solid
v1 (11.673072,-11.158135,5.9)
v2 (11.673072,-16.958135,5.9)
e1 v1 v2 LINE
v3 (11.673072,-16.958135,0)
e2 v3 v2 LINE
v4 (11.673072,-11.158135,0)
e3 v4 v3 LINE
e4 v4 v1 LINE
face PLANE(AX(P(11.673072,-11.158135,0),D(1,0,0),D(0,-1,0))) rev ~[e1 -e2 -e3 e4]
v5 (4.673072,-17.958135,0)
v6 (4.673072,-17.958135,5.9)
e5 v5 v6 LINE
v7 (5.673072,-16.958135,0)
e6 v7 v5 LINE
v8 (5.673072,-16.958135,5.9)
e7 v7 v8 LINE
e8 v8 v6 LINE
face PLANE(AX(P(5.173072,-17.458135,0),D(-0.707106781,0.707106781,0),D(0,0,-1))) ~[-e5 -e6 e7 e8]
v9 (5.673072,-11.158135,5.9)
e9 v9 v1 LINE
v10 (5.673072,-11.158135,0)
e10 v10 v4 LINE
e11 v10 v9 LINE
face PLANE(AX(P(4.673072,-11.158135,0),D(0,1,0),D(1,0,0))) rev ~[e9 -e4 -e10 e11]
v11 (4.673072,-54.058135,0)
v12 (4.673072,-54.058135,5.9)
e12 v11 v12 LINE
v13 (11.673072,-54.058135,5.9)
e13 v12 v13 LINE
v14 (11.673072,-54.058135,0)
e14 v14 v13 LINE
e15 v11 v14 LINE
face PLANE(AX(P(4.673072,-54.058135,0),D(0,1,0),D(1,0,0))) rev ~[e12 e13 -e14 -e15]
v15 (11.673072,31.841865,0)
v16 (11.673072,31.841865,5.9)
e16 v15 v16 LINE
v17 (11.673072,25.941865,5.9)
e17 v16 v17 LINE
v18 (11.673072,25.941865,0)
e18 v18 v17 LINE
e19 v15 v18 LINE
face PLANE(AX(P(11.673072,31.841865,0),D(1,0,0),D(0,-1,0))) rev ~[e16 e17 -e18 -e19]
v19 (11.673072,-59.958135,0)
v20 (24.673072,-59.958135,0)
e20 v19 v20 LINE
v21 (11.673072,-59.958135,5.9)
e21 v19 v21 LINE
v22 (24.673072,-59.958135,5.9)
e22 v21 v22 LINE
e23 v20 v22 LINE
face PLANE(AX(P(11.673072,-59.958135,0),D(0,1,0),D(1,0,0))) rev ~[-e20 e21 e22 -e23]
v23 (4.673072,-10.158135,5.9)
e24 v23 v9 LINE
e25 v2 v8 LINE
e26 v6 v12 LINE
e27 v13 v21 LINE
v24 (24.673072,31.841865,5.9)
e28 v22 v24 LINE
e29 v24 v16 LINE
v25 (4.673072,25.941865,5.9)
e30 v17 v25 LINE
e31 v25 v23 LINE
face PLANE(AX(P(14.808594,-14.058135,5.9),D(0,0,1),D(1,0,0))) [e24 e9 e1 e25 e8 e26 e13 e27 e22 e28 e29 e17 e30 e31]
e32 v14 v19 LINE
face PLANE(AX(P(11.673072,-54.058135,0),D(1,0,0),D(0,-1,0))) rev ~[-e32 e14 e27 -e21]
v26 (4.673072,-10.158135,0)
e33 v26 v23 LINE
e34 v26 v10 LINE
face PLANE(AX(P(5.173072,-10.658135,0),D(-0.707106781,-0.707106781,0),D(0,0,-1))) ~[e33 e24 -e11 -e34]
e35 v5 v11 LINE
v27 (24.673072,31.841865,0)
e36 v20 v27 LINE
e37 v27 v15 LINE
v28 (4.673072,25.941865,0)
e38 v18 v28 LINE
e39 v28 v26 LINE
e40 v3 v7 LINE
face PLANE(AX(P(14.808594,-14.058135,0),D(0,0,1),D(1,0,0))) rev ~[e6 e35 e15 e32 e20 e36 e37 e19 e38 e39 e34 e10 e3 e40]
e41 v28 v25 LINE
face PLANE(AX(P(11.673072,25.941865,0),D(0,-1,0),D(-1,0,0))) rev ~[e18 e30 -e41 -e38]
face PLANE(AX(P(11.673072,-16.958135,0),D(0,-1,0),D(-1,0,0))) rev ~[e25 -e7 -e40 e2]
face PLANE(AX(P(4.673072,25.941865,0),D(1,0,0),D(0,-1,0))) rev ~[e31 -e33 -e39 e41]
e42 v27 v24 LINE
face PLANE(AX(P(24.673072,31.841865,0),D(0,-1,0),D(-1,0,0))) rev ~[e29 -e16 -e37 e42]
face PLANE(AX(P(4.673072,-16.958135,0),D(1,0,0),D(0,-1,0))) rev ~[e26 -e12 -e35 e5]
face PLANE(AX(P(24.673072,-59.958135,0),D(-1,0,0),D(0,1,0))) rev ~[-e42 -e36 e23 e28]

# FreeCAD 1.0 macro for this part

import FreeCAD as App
import Part
import Sketcher

V = App.Vector


def edges_at(feature, points):
    """Names of the edges that pass closest to the given points."""
    edges = feature.Shape.Edges
    near = lambda p: min(range(len(edges)), key=lambda i: edges[i].distToShape(Part.Vertex(*p))[0])
    return sorted({f"Edge{near(p) + 1}" for p in points})

doc = App.newDocument("Part")
body = doc.addObject("PartDesign::Body", "Body")

sketch1 = body.newObject("Sketcher::SketchObject", "Sketch")
sketch1.AttachmentSupport = (doc.getObject("XY_Plane"), [""])
sketch1.MapMode = "FlatFace"
sketch1.addGeometry(Part.LineSegment(V(5, -54, 0), V(12, -54, 0)), False)
sketch1.addGeometry(Part.LineSegment(V(12, -54, 0), V(12, -60, 0)), False)
sketch1.addGeometry(Part.LineSegment(V(12, -60, 0), V(25, -60, 0)), False)
sketch1.addGeometry(Part.LineSegment(V(25, -60, 0), V(25, 32, 0)), False)
sketch1.addGeometry(Part.LineSegment(V(25, 32, 0), V(12, 32, 0)), False)
sketch1.addGeometry(Part.LineSegment(V(12, 32, 0), V(12, 26, 0)), False)
sketch1.addGeometry(Part.LineSegment(V(12, 26, 0), V(5, 26, 0)), False)
sketch1.addGeometry(Part.LineSegment(V(5, 26, 0), V(5, -11, 0)), False)
sketch1.addGeometry(Part.LineSegment(V(5, -11, 0), V(12, -11, 0)), False)
sketch1.addGeometry(Part.LineSegment(V(12, -11, 0), V(12, -17, 0)), False)
sketch1.addGeometry(Part.LineSegment(V(12, -17, 0), V(5, -17, 0)), False)
sketch1.addGeometry(Part.LineSegment(V(5, -17, 0), V(5, -54, 0)), False)
sketch1.addConstraint(Sketcher.Constraint("Coincident", 0, 2, 1, 1))
sketch1.addConstraint(Sketcher.Constraint("Coincident", 1, 2, 2, 1))
sketch1.addConstraint(Sketcher.Constraint("Coincident", 2, 2, 3, 1))
sketch1.addConstraint(Sketcher.Constraint("Coincident", 3, 2, 4, 1))
sketch1.addConstraint(Sketcher.Constraint("Coincident", 4, 2, 5, 1))
sketch1.addConstraint(Sketcher.Constraint("Coincident", 5, 2, 6, 1))
sketch1.addConstraint(Sketcher.Constraint("Coincident", 6, 2, 7, 1))
sketch1.addConstraint(Sketcher.Constraint("Coincident", 7, 2, 8, 1))
sketch1.addConstraint(Sketcher.Constraint("Coincident", 8, 2, 9, 1))
sketch1.addConstraint(Sketcher.Constraint("Coincident", 9, 2, 10, 1))
sketch1.addConstraint(Sketcher.Constraint("Coincident", 10, 2, 11, 1))
sketch1.addConstraint(Sketcher.Constraint("Coincident", 11, 2, 0, 1))
sketch1.addConstraint(Sketcher.Constraint("Horizontal", 0))
sketch1.addConstraint(Sketcher.Constraint("Vertical", 1))
sketch1.addConstraint(Sketcher.Constraint("Horizontal", 2))
sketch1.addConstraint(Sketcher.Constraint("Vertical", 3))
sketch1.addConstraint(Sketcher.Constraint("Horizontal", 4))
sketch1.addConstraint(Sketcher.Constraint("Vertical", 5))
sketch1.addConstraint(Sketcher.Constraint("Horizontal", 6))
sketch1.addConstraint(Sketcher.Constraint("Vertical", 7))
sketch1.addConstraint(Sketcher.Constraint("Horizontal", 8))
sketch1.addConstraint(Sketcher.Constraint("Vertical", 9))
sketch1.addConstraint(Sketcher.Constraint("Horizontal", 10))
sketch1.addConstraint(Sketcher.Constraint("Vertical", 11))
sketch1.addConstraint(Sketcher.Constraint("Vertical", 1, 2, 4, 2))
sketch1.addConstraint(Sketcher.Constraint("Vertical", 5, 2, 8, 2))
sketch1.addConstraint(Sketcher.Constraint("Vertical", 7, 2, 10, 2))
sketch1.addConstraint(Sketcher.Constraint("Equal", 1, 5))
sketch1.addConstraint(Sketcher.Constraint("Equal", 7, 11))
sketch1.addConstraint(Sketcher.Constraint("DistanceX", 0, 1, 0, 2, 7.0))
sketch1.addConstraint(Sketcher.Constraint("DistanceX", 2, 1, 2, 2, 13.0))
sketch1.addConstraint(Sketcher.Constraint("DistanceY", 1, 2, 1, 1, 5.9))
sketch1.addConstraint(Sketcher.Constraint("DistanceY", 3, 1, 3, 2, 91.8))
sketch1.addConstraint(Sketcher.Constraint("DistanceY", 7, 2, 7, 1, 37.1))
sketch1.addConstraint(Sketcher.Constraint("DistanceX", -1, 1, 0, 2, 11.673072))
sketch1.addConstraint(Sketcher.Constraint("DistanceY", 0, 2, -1, 1, 54.058135))
pad1 = body.newObject("PartDesign::Pad", "Pad")
pad1.Profile = sketch1
pad1.Length = 5.9
doc.recompute()

chamfer = body.newObject("PartDesign::Chamfer", "Chamfer")
chamfer.Base = (pad1, edges_at(pad1, [(4.673, -11.158, 2.95), (4.673, -16.958, 2.95)]))
chamfer.Size = 1

doc.recompute()
